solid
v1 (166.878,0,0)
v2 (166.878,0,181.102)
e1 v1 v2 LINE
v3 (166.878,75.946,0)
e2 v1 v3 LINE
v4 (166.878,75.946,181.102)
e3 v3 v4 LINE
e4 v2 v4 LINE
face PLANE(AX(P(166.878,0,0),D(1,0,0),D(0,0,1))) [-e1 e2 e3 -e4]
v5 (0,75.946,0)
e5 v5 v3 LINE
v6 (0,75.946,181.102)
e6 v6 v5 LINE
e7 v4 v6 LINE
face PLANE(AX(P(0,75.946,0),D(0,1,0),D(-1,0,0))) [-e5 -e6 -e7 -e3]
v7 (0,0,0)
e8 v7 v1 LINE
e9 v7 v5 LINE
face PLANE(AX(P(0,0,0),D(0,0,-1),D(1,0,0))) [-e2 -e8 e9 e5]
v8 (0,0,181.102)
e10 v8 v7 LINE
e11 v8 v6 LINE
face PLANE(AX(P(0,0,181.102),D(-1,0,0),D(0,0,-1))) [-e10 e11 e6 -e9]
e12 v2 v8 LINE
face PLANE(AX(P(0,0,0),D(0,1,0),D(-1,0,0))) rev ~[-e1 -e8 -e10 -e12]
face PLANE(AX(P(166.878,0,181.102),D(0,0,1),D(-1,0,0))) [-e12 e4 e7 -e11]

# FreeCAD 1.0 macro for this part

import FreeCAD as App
import Part
import Sketcher
from FreeCAD import Vector
Q = App.Units.Quantity

doc = App.newDocument("Part")
body = doc.addObject("PartDesign::Body", "Body")

# Sketch on XZ plane
sketch1 = doc.addObject("Sketcher::SketchObject", "Sketch")
body.addObject(sketch1)
sketch1.AttachmentSupport = (doc.XZ_Plane, [""])
sketch1.MapMode = "FlatFace"
sketch1.addGeometry([
    Part.LineSegment(Vector(167, 0, 0), Vector(0, 0, 0)),
    Part.LineSegment(Vector(0, 0, 0), Vector(0, 181, 0)),
    Part.LineSegment(Vector(0, 181, 0), Vector(167, 181, 0)),
    Part.LineSegment(Vector(167, 181, 0), Vector(167, 0, 0)),
], False)
sketch1.addConstraint([
    Sketcher.Constraint("Coincident", 0, 2, 1, 1),
    Sketcher.Constraint("Coincident", 1, 2, 2, 1),
    Sketcher.Constraint("Coincident", 2, 2, 3, 1),
    Sketcher.Constraint("Coincident", 3, 2, 0, 1),
    Sketcher.Constraint("Horizontal", 0),
    Sketcher.Constraint("Vertical", 1),
    Sketcher.Constraint("Horizontal", 2),
    Sketcher.Constraint("Vertical", 3),
    Sketcher.Constraint("Coincident", 0, 2, -1, 1),
    Sketcher.Constraint("DistanceX", 0, 2, 0, 1, Q("6.57 in")),
    Sketcher.Constraint("DistanceY", 1, 1, 1, 2, Q("7.13 in")),
])
pad1 = doc.addObject("PartDesign::Pad", "Pad")
body.addObject(pad1)
pad1.Profile = sketch1
pad1.Length = Q("2.99 in")
pad1.Reversed = True

doc.recompute()
